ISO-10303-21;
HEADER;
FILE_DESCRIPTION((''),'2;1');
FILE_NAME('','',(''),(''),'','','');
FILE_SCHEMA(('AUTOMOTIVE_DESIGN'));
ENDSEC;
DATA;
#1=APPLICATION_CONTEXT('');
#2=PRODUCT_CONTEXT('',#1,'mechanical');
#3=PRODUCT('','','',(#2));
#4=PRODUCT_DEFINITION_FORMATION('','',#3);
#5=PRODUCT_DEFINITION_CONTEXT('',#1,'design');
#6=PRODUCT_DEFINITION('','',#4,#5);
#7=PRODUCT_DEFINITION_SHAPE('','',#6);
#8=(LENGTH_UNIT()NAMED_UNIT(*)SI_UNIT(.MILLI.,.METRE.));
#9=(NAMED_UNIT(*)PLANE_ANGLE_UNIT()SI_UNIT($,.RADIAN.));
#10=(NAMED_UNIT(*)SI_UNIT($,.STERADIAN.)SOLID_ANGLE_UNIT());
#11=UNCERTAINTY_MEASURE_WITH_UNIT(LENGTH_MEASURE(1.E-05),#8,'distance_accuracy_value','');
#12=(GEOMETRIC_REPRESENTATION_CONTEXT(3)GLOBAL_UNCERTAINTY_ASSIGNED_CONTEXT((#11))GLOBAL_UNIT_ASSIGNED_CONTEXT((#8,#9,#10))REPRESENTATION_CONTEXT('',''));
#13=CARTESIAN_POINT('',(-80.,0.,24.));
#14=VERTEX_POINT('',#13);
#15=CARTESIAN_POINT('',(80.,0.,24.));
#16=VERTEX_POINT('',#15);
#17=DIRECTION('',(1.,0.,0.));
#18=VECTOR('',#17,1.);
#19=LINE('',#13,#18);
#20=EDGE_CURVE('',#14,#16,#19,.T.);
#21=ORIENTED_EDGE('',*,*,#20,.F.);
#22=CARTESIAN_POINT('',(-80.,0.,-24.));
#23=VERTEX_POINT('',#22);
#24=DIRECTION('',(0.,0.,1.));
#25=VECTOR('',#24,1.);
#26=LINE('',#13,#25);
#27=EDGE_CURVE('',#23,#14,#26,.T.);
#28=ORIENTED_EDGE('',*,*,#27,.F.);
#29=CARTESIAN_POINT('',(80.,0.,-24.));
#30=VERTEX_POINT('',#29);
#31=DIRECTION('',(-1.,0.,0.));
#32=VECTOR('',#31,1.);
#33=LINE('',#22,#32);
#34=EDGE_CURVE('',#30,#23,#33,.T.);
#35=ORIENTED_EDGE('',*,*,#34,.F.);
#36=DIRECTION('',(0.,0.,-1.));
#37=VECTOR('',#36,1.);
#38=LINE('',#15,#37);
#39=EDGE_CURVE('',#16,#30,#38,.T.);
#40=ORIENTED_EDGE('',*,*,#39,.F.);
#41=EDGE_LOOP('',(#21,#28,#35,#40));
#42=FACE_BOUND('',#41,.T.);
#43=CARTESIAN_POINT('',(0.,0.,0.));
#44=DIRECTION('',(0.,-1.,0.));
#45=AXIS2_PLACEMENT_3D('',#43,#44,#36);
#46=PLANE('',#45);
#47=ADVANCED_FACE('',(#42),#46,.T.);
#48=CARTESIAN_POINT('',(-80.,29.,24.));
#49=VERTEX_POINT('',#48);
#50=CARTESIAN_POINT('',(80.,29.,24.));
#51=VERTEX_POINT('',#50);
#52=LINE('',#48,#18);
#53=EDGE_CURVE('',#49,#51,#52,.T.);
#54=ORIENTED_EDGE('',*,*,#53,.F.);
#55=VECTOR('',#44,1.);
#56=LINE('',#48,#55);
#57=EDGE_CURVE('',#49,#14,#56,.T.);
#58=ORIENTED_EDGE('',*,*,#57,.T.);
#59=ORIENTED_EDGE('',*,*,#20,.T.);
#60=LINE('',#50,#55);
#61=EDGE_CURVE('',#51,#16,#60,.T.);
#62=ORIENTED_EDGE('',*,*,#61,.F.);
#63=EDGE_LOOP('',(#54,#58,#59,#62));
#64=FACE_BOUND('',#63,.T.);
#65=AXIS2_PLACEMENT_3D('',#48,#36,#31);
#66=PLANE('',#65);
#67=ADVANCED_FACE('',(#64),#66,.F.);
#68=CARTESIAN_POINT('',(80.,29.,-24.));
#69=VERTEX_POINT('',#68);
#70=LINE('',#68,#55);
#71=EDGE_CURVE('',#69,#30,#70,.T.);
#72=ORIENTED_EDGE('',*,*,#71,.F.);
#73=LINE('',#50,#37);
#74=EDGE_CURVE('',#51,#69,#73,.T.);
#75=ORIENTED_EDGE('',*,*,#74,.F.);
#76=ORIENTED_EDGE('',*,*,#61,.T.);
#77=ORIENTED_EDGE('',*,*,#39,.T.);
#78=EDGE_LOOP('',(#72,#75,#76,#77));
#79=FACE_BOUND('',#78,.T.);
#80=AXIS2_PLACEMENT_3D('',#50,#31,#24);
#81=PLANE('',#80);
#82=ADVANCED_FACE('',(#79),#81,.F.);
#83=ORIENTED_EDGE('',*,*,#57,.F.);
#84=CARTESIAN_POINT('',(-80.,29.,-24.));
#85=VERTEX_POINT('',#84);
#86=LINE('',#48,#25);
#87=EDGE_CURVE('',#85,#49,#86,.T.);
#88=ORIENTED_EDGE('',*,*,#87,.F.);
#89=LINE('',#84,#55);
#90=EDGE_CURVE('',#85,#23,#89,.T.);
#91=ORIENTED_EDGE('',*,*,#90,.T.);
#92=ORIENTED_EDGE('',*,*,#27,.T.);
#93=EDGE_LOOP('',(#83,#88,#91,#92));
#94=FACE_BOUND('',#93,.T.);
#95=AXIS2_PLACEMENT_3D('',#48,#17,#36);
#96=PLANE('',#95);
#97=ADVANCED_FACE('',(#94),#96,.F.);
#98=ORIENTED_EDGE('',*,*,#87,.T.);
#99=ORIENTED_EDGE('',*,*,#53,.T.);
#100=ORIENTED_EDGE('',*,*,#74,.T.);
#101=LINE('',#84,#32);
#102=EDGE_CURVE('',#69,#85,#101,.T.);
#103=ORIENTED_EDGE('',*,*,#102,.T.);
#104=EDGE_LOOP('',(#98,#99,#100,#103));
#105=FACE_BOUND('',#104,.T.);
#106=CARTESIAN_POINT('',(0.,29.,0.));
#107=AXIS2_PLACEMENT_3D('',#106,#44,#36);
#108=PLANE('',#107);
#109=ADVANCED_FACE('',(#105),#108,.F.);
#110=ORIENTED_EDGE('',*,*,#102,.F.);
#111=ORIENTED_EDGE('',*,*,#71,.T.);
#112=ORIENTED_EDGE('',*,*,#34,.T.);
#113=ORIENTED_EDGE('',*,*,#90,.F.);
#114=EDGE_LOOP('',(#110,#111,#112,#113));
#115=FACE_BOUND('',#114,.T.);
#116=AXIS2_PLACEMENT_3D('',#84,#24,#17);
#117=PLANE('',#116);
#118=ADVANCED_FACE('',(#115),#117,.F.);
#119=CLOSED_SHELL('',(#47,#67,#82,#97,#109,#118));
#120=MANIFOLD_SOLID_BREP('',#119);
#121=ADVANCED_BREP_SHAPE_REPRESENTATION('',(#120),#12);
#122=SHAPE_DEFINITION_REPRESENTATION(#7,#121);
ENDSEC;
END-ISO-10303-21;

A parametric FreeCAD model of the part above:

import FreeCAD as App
import Part
import Sketcher
from FreeCAD import Vector

doc = App.newDocument("Part")
body = doc.addObject("PartDesign::Body", "Body")

# Sketch on XZ plane
sketch1 = body.newObject("Sketcher::SketchObject", "Sketch")
sketch1.AttachmentSupport = (doc.getObject("XZ_Plane"), [""])
sketch1.MapMode = "FlatFace"
sketch1.addGeometry([
    Part.LineSegment(Vector(-80, -24, 0), Vector(-80, 24, 0)),
    Part.LineSegment(Vector(-80, 24, 0), Vector(80, 24, 0)),
    Part.LineSegment(Vector(80, 24, 0), Vector(80, -24, 0)),
    Part.LineSegment(Vector(80, -24, 0), Vector(-80, -24, 0)),
], False)
sketch1.addConstraint([
    Sketcher.Constraint("Coincident", 0, 2, 1, 1),
    Sketcher.Constraint("Coincident", 1, 2, 2, 1),
    Sketcher.Constraint("Coincident", 2, 2, 3, 1),
    Sketcher.Constraint("Coincident", 3, 2, 0, 1),
    Sketcher.Constraint("Vertical", 0),
    Sketcher.Constraint("Horizontal", 1),
    Sketcher.Constraint("Vertical", 2),
    Sketcher.Constraint("Horizontal", 3),
    Sketcher.Constraint("Symmetric", 0, 2, 2, 2, -1, 1),
    Sketcher.Constraint("DistanceX", 1, 1, 1, 2, 160.0),
    Sketcher.Constraint("DistanceY", 0, 1, 0, 2, 48.0),
])
pad1 = body.newObject("PartDesign::Pad", "Pad")
pad1.Profile = sketch1
pad1.Length = 29
pad1.Reversed = True

doc.recompute()
